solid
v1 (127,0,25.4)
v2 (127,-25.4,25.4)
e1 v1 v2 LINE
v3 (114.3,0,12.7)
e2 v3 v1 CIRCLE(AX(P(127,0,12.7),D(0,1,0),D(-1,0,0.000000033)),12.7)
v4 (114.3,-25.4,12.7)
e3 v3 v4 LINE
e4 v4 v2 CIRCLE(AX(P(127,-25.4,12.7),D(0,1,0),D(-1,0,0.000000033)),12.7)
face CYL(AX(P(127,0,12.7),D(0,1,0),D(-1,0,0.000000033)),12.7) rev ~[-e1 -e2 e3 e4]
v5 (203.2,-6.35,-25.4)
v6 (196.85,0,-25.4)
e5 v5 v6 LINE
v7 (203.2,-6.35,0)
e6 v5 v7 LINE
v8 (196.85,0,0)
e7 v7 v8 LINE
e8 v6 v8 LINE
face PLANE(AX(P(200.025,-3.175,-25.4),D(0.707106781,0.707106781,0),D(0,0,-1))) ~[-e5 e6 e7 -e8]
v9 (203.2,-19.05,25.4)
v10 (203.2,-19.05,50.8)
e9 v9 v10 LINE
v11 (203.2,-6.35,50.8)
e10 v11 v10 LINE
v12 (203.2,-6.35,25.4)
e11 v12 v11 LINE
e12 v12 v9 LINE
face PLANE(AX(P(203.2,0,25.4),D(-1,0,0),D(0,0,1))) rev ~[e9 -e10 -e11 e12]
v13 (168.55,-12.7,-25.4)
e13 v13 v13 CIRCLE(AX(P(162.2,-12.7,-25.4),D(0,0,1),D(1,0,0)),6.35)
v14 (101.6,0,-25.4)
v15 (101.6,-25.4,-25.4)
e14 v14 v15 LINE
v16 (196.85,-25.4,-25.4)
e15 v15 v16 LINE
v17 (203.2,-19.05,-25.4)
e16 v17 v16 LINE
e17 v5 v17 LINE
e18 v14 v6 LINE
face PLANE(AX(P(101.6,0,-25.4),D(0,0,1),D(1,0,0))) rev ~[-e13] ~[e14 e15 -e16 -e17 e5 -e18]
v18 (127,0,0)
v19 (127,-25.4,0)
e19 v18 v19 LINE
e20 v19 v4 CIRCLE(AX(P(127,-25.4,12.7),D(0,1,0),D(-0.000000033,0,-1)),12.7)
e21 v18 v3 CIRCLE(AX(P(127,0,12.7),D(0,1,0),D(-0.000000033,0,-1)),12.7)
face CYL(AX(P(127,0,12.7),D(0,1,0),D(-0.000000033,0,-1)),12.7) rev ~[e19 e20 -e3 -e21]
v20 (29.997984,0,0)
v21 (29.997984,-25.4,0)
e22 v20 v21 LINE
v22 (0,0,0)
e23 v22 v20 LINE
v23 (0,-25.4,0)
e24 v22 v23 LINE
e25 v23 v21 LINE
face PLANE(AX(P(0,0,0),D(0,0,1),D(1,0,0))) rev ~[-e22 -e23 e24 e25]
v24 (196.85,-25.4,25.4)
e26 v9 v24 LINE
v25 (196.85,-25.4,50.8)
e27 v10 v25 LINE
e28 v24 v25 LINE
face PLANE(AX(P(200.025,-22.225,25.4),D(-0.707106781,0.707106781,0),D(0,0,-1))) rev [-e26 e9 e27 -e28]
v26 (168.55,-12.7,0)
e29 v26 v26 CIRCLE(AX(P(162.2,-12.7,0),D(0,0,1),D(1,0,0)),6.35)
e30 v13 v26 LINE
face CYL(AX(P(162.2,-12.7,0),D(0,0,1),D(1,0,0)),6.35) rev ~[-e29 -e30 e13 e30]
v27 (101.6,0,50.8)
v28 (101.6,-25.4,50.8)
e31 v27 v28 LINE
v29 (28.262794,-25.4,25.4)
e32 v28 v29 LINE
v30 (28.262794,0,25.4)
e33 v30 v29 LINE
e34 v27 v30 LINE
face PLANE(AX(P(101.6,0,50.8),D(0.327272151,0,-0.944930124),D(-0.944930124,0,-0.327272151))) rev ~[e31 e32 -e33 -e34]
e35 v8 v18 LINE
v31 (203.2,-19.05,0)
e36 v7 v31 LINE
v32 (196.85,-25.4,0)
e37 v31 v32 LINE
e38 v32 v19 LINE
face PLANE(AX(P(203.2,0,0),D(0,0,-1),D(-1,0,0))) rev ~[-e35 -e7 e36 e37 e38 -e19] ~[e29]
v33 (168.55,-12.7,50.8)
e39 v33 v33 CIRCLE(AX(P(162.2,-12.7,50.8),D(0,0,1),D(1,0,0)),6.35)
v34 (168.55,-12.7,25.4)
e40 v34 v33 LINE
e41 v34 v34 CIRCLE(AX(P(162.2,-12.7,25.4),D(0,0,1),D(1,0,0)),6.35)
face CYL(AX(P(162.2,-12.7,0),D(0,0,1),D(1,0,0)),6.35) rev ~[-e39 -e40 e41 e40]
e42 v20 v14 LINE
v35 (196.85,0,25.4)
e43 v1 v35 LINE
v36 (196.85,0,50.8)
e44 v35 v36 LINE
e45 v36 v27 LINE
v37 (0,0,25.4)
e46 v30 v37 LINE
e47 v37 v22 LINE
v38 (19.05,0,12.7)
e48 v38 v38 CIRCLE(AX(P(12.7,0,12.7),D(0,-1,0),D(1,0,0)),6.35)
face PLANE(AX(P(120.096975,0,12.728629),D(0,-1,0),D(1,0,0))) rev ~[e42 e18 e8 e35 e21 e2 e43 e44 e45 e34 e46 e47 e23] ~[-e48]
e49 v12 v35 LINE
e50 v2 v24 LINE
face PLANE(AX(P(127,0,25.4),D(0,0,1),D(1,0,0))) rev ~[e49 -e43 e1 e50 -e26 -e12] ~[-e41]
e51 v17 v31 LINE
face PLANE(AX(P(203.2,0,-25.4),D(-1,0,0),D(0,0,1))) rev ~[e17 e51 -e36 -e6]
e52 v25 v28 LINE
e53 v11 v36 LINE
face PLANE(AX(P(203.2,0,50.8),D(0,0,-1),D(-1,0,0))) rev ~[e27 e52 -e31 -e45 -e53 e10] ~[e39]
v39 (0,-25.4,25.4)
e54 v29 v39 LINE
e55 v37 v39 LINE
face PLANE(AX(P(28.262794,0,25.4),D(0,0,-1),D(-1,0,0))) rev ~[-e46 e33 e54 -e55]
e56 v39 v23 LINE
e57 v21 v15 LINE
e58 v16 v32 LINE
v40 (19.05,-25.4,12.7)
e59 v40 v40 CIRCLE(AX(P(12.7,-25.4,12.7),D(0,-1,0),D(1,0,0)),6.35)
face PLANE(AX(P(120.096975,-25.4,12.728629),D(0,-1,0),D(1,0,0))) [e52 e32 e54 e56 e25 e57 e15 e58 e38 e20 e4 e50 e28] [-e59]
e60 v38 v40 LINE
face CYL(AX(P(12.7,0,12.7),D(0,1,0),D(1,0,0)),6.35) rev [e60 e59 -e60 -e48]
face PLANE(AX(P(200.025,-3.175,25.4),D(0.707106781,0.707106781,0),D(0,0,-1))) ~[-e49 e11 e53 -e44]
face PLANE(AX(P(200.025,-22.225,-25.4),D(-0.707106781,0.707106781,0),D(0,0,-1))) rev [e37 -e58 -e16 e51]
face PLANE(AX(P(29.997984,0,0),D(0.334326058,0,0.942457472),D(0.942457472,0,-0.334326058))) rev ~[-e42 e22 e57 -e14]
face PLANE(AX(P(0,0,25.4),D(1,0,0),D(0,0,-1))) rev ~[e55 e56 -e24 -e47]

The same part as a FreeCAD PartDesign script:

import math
import FreeCAD as App
import Part
import Sketcher
Q = App.Units.Quantity


def edges_at(feature, points):
    """Names of the edges that pass closest to the given points."""
    edges = feature.Shape.Edges
    near = lambda p: min(range(len(edges)), key=lambda i: edges[i].distToShape(Part.Vertex(*p))[0])
    return sorted({f"Edge{near(p) + 1}" for p in points})

doc = App.newDocument("Part")
body = doc.addObject("PartDesign::Body", "Body")

# Sketch on XZ plane
sketch1 = body.newObject("Sketcher::SketchObject", "Sketch")
sketch1.AttachmentSupport = (doc.getObject("XZ_Plane"), [""])
sketch1.MapMode = "FlatFace"
sketch1.addGeometry([
    Part.LineSegment(App.Vector(0, 25, 0), App.Vector(0, 0, 0)),  # 0
    Part.LineSegment(App.Vector(0, 0, 0), App.Vector(30, 0, 0)),  # 1
    Part.LineSegment(App.Vector(30, 0, 0), App.Vector(102, -25, 0)),  # 2
    Part.LineSegment(App.Vector(102, -25, 0), App.Vector(203, -25, 0)),  # 3
    Part.LineSegment(App.Vector(203, -25, 0), App.Vector(203, 0, 0)),  # 4
    Part.LineSegment(App.Vector(203, 0, 0), App.Vector(127, 0, 0)),  # 5
    Part.ArcOfCircle(Part.Circle(App.Vector(127, 13, 0), App.Vector(0, 0, 1), 13), math.radians(-180), math.radians(-90)),  # 6
    Part.ArcOfCircle(Part.Circle(App.Vector(127, 13, 0), App.Vector(0, 0, 1), 13), math.radians(90), math.radians(180)),  # 7
    Part.LineSegment(App.Vector(127, 25, 0), App.Vector(203, 25, 0)),  # 8
    Part.LineSegment(App.Vector(203, 25, 0), App.Vector(203, 51, 0)),  # 9
    Part.LineSegment(App.Vector(203, 51, 0), App.Vector(102, 51, 0)),  # 10
    Part.LineSegment(App.Vector(102, 51, 0), App.Vector(28, 25, 0)),  # 11
    Part.LineSegment(App.Vector(28, 25, 0), App.Vector(0, 25, 0)),  # 12
    Part.Circle(App.Vector(13, 13, 0), App.Vector(0, 0, 1), 6),  # 13
], False)
sketch1.addConstraint([
    Sketcher.Constraint("Coincident", 0, 2, 1, 1),
    Sketcher.Constraint("Coincident", 1, 2, 2, 1),
    Sketcher.Constraint("Coincident", 2, 2, 3, 1),
    Sketcher.Constraint("Coincident", 3, 2, 4, 1),
    Sketcher.Constraint("Coincident", 4, 2, 5, 1),
    Sketcher.Constraint("Tangent", 5, 2, 6, 2),
    Sketcher.Constraint("Tangent", 6, 1, 7, 2),
    Sketcher.Constraint("Tangent", 7, 1, 8, 1),
    Sketcher.Constraint("Coincident", 8, 2, 9, 1),
    Sketcher.Constraint("Coincident", 9, 2, 10, 1),
    Sketcher.Constraint("Coincident", 10, 2, 11, 1),
    Sketcher.Constraint("Coincident", 11, 2, 12, 1),
    Sketcher.Constraint("Coincident", 12, 2, 0, 1),
    Sketcher.Constraint("Vertical", 0),
    Sketcher.Constraint("Horizontal", 1),
    Sketcher.Constraint("Horizontal", 3),
    Sketcher.Constraint("Vertical", 4),
    Sketcher.Constraint("Horizontal", 5),
    Sketcher.Constraint("Horizontal", 8),
    Sketcher.Constraint("Vertical", 9),
    Sketcher.Constraint("Horizontal", 10),
    Sketcher.Constraint("Horizontal", 12),
    Sketcher.Constraint("Coincident", 0, 2, -1, 1),
    Sketcher.Constraint("Equal", 6, 7),
    Sketcher.Constraint("Symmetric", 3, 2, 8, 2, -1),
    Sketcher.Constraint("PointOnObject", 4, 2, -1),
    Sketcher.Constraint("Horizontal", 7, 3, 13, 3),
    Sketcher.Constraint("Horizontal", 13, 3, 6, 1),
    Sketcher.Constraint("Horizontal", 8, 2, 11, 2),
    Sketcher.Constraint("Vertical", 2, 2, 10, 2),
    Sketcher.Constraint("Equal", 4, 9),
    Sketcher.Constraint("Diameter", 13, Q("0.5 in")),
    Sketcher.Constraint("Radius", 6, Q("0.5 in")),
    Sketcher.Constraint("DistanceX", 3, 1, 3, 2, Q("4 in")),
    Sketcher.Constraint("DistanceX", 5, 2, 5, 1, Q("3 in")),
    Sketcher.Constraint("DistanceX", -1, 1, 6, 3, Q("5 in")),
    Sketcher.Constraint("DistanceX", -1, 1, 13, 3, Q("0.5 in")),
    Sketcher.Constraint("DistanceX", 1, 1, 1, 2, Q("29.997984 mm")),
    Sketcher.Constraint("DistanceX", 12, 2, 12, 1, Q("28.262794 mm")),
])
pad1 = body.newObject("PartDesign::Pad", "Pad")
pad1.Profile = sketch1
pad1.Length = Q("1 in")
doc.recompute()

chamfer = body.newObject("PartDesign::Chamfer", "Chamfer")
chamfer.Base = (pad1, edges_at(pad1, [
    (203.2, -25.4, 38.1),
    (203.2, -25.4, -12.7),
    (203.2, 0, -12.7),
    (203.2, 0, 38.1),
]))
chamfer.ChamferType = "Two distances"
chamfer.Size = Q("0.25 in")
chamfer.Size2 = Q("0.25 in")

# Sketch on XY plane
sketch2 = body.newObject("Sketcher::SketchObject", "Sketch001")
sketch2.AttachmentSupport = (doc.getObject("XY_Plane"), [""])
sketch2.MapMode = "FlatFace"
sketch2.addGeometry(Part.Circle(App.Vector(162, -13, 0), App.Vector(0, 0, 1), 6), False)
sketch2.addConstraint([
    Sketcher.Constraint("Diameter", 0, Q("0.5 in")),
    Sketcher.Constraint("DistanceY", 0, 3, -1, 1, Q("0.5 in")),
    Sketcher.Constraint("DistanceX", -1, 1, 0, 3, Q("162.2 mm")),
])
pocket1 = body.newObject("PartDesign::Pocket", "Pocket")
pocket1.Profile = sketch2
pocket1.Length = Q("10 in")
pocket1.Midplane = True

doc.recompute()
